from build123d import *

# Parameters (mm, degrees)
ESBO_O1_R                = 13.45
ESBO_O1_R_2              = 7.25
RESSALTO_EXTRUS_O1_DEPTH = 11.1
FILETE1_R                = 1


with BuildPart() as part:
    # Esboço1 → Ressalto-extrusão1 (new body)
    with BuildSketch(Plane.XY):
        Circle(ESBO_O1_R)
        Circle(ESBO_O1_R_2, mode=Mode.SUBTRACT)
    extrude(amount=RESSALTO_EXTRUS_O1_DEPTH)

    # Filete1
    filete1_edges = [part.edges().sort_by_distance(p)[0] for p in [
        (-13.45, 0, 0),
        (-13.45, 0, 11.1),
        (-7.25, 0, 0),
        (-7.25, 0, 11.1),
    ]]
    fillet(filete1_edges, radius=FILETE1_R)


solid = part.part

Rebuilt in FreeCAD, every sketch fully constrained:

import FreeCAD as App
import Part
import Sketcher


def edges_at(feature, points):
    """Names of the edges that pass closest to the given points."""
    edges = feature.Shape.Edges
    near = lambda p: min(range(len(edges)), key=lambda i: edges[i].distToShape(Part.Vertex(*p))[0])
    return sorted({f"Edge{near(p) + 1}" for p in points})

doc = App.newDocument("Part")
body = doc.addObject("PartDesign::Body", "Body")

# Sketch on XY plane
sketch1 = doc.addObject("Sketcher::SketchObject", "Sketch")
body.addObject(sketch1)
sketch1.AttachmentSupport = (doc.XY_Plane, [""])
sketch1.MapMode = "FlatFace"
sketch1.addGeometry([
    Part.Circle(App.Vector(0, 0, 0), App.Vector(0, 0, 1), 13),
    Part.Circle(App.Vector(0, 0, 0), App.Vector(0, 0, 1), 7),
], False)
sketch1.addConstraint([
    Sketcher.Constraint("Coincident", 0, 3, -1, 1),
    Sketcher.Constraint("Coincident", 1, 3, -1, 1),
    Sketcher.Constraint("Diameter", 0, 26.9),
    Sketcher.Constraint("Diameter", 1, 14.5),
])
pad1 = doc.addObject("PartDesign::Pad", "Pad")
body.addObject(pad1)
pad1.Profile = sketch1
pad1.Length = 11.1
doc.recompute()

fillet = doc.addObject("PartDesign::Fillet", "Fillet")
body.addObject(fillet)
fillet.Base = (pad1, edges_at(pad1, [
    (-13.45, 0, 0),
    (-13.45, 0, 11.1),
    (-7.25, 0, 0),
    (-7.25, 0, 11.1),
]))
fillet.Radius = 1

doc.recompute()
